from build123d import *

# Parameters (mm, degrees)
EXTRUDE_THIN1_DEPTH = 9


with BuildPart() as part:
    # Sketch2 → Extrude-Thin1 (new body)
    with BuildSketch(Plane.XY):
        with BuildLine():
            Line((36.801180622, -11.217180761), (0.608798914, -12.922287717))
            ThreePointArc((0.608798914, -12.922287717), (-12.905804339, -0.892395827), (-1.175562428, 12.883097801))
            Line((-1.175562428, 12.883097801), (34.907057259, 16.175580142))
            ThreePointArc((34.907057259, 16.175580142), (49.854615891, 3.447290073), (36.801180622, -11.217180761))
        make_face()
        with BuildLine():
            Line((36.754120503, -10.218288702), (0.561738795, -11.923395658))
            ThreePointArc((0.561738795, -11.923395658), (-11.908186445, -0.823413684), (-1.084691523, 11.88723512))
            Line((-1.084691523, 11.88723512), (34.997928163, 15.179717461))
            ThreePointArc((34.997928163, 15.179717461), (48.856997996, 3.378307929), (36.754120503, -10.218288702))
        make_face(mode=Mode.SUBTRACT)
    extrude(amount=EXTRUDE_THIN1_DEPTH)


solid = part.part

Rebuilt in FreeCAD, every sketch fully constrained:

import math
import FreeCAD as App
import Part
import Sketcher
Q = App.Units.Quantity

doc = App.newDocument("Part")
params = doc.addObject("Spreadsheet::Sheet", "Params")
for row, (alias, value) in enumerate([
    ("pad1_length", "9 mm"),
], start=1):
    params.set(f"A{row}", alias)
    params.set(f"B{row}", "=" + value)
    params.setAlias(f"B{row}", alias)

body = doc.addObject("PartDesign::Body", "Body")

# Sketch on XY plane
sketch1 = body.newObject("Sketcher::SketchObject", "Sketch")
sketch1.AttachmentSupport = (doc.getObject("XY_Plane"), [""])
sketch1.MapMode = "FlatFace"
sketch1.addGeometry(Part.LineSegment(App.Vector(0.608799, -12.922288, 0), App.Vector(36.801181, -11.217181, 0)), False)
sketch1.addGeometry(Part.ArcOfCircle(Part.Circle(App.Vector(36.154932, 2.5, 0), App.Vector(0, 0, 1), 13.732395), math.radians(-87.302658), math.radians(95.213712)), False)
sketch1.addGeometry(Part.LineSegment(App.Vector(34.907057, 16.17558, 0), App.Vector(-1.175562, 12.883098, 0)), False)
sketch1.addGeometry(Part.ArcOfCircle(Part.Circle(App.Vector(0, 0, 0), App.Vector(0, 0, 1), 12.936621), math.radians(95.213712), math.radians(272.697342)), False)
sketch1.addGeometry(Part.LineSegment(App.Vector(36.754121, -10.218289, 0), App.Vector(0.561739, -11.923396, 0)), False)
sketch1.addGeometry(Part.ArcOfCircle(Part.Circle(App.Vector(0, 0, 0), App.Vector(0, 0, 1), 11.936621), math.radians(95.213712), math.radians(272.697342)), False)
sketch1.addGeometry(Part.LineSegment(App.Vector(-1.084692, 11.887235, 0), App.Vector(34.997928, 15.179717, 0)), False)
sketch1.addGeometry(Part.ArcOfCircle(Part.Circle(App.Vector(36.154932, 2.5, 0), App.Vector(0, 0, 1), 12.732395), math.radians(-87.302658), math.radians(95.213712)), False)
sketch1.addConstraint(Sketcher.Constraint("Tangent", 0, 2, 1, 1))
sketch1.addConstraint(Sketcher.Constraint("Tangent", 1, 2, 2, 1))
sketch1.addConstraint(Sketcher.Constraint("Tangent", 2, 2, 3, 1))
sketch1.addConstraint(Sketcher.Constraint("Tangent", 3, 2, 0, 1))
sketch1.addConstraint(Sketcher.Constraint("Tangent", 4, 2, 5, 2))
sketch1.addConstraint(Sketcher.Constraint("Tangent", 5, 1, 6, 1))
sketch1.addConstraint(Sketcher.Constraint("Tangent", 6, 2, 7, 2))
sketch1.addConstraint(Sketcher.Constraint("Tangent", 7, 1, 4, 1))
sketch1.addConstraint(Sketcher.Constraint("Coincident", 3, 3, -1, 1))
sketch1.addConstraint(Sketcher.Constraint("Coincident", 5, 3, -1, 1))
sketch1.addConstraint(Sketcher.Constraint("Coincident", 7, 3, 1, 3))
sketch1.addConstraint(Sketcher.Constraint("Parallel", 0, 4))
sketch1.addConstraint(Sketcher.Constraint("DistanceY", -1, 1, 1, 3, Q("2.5 mm")))
sketch1.addConstraint(Sketcher.Constraint("Radius", 3, Q("12.936621 mm")))
sketch1.addConstraint(Sketcher.Constraint("Radius", 5, Q("11.936621 mm")))
sketch1.addConstraint(Sketcher.Constraint("Radius", 1, Q("13.732395 mm")))
sketch1.addConstraint(Sketcher.Constraint("DistanceX", 2, 2, 4, 2, Q("1.737301 mm")))
pad1 = body.newObject("PartDesign::Pad", "Pad")
pad1.Profile = sketch1
pad1.setExpression("Length", "Params.pad1_length")

doc.recompute()
